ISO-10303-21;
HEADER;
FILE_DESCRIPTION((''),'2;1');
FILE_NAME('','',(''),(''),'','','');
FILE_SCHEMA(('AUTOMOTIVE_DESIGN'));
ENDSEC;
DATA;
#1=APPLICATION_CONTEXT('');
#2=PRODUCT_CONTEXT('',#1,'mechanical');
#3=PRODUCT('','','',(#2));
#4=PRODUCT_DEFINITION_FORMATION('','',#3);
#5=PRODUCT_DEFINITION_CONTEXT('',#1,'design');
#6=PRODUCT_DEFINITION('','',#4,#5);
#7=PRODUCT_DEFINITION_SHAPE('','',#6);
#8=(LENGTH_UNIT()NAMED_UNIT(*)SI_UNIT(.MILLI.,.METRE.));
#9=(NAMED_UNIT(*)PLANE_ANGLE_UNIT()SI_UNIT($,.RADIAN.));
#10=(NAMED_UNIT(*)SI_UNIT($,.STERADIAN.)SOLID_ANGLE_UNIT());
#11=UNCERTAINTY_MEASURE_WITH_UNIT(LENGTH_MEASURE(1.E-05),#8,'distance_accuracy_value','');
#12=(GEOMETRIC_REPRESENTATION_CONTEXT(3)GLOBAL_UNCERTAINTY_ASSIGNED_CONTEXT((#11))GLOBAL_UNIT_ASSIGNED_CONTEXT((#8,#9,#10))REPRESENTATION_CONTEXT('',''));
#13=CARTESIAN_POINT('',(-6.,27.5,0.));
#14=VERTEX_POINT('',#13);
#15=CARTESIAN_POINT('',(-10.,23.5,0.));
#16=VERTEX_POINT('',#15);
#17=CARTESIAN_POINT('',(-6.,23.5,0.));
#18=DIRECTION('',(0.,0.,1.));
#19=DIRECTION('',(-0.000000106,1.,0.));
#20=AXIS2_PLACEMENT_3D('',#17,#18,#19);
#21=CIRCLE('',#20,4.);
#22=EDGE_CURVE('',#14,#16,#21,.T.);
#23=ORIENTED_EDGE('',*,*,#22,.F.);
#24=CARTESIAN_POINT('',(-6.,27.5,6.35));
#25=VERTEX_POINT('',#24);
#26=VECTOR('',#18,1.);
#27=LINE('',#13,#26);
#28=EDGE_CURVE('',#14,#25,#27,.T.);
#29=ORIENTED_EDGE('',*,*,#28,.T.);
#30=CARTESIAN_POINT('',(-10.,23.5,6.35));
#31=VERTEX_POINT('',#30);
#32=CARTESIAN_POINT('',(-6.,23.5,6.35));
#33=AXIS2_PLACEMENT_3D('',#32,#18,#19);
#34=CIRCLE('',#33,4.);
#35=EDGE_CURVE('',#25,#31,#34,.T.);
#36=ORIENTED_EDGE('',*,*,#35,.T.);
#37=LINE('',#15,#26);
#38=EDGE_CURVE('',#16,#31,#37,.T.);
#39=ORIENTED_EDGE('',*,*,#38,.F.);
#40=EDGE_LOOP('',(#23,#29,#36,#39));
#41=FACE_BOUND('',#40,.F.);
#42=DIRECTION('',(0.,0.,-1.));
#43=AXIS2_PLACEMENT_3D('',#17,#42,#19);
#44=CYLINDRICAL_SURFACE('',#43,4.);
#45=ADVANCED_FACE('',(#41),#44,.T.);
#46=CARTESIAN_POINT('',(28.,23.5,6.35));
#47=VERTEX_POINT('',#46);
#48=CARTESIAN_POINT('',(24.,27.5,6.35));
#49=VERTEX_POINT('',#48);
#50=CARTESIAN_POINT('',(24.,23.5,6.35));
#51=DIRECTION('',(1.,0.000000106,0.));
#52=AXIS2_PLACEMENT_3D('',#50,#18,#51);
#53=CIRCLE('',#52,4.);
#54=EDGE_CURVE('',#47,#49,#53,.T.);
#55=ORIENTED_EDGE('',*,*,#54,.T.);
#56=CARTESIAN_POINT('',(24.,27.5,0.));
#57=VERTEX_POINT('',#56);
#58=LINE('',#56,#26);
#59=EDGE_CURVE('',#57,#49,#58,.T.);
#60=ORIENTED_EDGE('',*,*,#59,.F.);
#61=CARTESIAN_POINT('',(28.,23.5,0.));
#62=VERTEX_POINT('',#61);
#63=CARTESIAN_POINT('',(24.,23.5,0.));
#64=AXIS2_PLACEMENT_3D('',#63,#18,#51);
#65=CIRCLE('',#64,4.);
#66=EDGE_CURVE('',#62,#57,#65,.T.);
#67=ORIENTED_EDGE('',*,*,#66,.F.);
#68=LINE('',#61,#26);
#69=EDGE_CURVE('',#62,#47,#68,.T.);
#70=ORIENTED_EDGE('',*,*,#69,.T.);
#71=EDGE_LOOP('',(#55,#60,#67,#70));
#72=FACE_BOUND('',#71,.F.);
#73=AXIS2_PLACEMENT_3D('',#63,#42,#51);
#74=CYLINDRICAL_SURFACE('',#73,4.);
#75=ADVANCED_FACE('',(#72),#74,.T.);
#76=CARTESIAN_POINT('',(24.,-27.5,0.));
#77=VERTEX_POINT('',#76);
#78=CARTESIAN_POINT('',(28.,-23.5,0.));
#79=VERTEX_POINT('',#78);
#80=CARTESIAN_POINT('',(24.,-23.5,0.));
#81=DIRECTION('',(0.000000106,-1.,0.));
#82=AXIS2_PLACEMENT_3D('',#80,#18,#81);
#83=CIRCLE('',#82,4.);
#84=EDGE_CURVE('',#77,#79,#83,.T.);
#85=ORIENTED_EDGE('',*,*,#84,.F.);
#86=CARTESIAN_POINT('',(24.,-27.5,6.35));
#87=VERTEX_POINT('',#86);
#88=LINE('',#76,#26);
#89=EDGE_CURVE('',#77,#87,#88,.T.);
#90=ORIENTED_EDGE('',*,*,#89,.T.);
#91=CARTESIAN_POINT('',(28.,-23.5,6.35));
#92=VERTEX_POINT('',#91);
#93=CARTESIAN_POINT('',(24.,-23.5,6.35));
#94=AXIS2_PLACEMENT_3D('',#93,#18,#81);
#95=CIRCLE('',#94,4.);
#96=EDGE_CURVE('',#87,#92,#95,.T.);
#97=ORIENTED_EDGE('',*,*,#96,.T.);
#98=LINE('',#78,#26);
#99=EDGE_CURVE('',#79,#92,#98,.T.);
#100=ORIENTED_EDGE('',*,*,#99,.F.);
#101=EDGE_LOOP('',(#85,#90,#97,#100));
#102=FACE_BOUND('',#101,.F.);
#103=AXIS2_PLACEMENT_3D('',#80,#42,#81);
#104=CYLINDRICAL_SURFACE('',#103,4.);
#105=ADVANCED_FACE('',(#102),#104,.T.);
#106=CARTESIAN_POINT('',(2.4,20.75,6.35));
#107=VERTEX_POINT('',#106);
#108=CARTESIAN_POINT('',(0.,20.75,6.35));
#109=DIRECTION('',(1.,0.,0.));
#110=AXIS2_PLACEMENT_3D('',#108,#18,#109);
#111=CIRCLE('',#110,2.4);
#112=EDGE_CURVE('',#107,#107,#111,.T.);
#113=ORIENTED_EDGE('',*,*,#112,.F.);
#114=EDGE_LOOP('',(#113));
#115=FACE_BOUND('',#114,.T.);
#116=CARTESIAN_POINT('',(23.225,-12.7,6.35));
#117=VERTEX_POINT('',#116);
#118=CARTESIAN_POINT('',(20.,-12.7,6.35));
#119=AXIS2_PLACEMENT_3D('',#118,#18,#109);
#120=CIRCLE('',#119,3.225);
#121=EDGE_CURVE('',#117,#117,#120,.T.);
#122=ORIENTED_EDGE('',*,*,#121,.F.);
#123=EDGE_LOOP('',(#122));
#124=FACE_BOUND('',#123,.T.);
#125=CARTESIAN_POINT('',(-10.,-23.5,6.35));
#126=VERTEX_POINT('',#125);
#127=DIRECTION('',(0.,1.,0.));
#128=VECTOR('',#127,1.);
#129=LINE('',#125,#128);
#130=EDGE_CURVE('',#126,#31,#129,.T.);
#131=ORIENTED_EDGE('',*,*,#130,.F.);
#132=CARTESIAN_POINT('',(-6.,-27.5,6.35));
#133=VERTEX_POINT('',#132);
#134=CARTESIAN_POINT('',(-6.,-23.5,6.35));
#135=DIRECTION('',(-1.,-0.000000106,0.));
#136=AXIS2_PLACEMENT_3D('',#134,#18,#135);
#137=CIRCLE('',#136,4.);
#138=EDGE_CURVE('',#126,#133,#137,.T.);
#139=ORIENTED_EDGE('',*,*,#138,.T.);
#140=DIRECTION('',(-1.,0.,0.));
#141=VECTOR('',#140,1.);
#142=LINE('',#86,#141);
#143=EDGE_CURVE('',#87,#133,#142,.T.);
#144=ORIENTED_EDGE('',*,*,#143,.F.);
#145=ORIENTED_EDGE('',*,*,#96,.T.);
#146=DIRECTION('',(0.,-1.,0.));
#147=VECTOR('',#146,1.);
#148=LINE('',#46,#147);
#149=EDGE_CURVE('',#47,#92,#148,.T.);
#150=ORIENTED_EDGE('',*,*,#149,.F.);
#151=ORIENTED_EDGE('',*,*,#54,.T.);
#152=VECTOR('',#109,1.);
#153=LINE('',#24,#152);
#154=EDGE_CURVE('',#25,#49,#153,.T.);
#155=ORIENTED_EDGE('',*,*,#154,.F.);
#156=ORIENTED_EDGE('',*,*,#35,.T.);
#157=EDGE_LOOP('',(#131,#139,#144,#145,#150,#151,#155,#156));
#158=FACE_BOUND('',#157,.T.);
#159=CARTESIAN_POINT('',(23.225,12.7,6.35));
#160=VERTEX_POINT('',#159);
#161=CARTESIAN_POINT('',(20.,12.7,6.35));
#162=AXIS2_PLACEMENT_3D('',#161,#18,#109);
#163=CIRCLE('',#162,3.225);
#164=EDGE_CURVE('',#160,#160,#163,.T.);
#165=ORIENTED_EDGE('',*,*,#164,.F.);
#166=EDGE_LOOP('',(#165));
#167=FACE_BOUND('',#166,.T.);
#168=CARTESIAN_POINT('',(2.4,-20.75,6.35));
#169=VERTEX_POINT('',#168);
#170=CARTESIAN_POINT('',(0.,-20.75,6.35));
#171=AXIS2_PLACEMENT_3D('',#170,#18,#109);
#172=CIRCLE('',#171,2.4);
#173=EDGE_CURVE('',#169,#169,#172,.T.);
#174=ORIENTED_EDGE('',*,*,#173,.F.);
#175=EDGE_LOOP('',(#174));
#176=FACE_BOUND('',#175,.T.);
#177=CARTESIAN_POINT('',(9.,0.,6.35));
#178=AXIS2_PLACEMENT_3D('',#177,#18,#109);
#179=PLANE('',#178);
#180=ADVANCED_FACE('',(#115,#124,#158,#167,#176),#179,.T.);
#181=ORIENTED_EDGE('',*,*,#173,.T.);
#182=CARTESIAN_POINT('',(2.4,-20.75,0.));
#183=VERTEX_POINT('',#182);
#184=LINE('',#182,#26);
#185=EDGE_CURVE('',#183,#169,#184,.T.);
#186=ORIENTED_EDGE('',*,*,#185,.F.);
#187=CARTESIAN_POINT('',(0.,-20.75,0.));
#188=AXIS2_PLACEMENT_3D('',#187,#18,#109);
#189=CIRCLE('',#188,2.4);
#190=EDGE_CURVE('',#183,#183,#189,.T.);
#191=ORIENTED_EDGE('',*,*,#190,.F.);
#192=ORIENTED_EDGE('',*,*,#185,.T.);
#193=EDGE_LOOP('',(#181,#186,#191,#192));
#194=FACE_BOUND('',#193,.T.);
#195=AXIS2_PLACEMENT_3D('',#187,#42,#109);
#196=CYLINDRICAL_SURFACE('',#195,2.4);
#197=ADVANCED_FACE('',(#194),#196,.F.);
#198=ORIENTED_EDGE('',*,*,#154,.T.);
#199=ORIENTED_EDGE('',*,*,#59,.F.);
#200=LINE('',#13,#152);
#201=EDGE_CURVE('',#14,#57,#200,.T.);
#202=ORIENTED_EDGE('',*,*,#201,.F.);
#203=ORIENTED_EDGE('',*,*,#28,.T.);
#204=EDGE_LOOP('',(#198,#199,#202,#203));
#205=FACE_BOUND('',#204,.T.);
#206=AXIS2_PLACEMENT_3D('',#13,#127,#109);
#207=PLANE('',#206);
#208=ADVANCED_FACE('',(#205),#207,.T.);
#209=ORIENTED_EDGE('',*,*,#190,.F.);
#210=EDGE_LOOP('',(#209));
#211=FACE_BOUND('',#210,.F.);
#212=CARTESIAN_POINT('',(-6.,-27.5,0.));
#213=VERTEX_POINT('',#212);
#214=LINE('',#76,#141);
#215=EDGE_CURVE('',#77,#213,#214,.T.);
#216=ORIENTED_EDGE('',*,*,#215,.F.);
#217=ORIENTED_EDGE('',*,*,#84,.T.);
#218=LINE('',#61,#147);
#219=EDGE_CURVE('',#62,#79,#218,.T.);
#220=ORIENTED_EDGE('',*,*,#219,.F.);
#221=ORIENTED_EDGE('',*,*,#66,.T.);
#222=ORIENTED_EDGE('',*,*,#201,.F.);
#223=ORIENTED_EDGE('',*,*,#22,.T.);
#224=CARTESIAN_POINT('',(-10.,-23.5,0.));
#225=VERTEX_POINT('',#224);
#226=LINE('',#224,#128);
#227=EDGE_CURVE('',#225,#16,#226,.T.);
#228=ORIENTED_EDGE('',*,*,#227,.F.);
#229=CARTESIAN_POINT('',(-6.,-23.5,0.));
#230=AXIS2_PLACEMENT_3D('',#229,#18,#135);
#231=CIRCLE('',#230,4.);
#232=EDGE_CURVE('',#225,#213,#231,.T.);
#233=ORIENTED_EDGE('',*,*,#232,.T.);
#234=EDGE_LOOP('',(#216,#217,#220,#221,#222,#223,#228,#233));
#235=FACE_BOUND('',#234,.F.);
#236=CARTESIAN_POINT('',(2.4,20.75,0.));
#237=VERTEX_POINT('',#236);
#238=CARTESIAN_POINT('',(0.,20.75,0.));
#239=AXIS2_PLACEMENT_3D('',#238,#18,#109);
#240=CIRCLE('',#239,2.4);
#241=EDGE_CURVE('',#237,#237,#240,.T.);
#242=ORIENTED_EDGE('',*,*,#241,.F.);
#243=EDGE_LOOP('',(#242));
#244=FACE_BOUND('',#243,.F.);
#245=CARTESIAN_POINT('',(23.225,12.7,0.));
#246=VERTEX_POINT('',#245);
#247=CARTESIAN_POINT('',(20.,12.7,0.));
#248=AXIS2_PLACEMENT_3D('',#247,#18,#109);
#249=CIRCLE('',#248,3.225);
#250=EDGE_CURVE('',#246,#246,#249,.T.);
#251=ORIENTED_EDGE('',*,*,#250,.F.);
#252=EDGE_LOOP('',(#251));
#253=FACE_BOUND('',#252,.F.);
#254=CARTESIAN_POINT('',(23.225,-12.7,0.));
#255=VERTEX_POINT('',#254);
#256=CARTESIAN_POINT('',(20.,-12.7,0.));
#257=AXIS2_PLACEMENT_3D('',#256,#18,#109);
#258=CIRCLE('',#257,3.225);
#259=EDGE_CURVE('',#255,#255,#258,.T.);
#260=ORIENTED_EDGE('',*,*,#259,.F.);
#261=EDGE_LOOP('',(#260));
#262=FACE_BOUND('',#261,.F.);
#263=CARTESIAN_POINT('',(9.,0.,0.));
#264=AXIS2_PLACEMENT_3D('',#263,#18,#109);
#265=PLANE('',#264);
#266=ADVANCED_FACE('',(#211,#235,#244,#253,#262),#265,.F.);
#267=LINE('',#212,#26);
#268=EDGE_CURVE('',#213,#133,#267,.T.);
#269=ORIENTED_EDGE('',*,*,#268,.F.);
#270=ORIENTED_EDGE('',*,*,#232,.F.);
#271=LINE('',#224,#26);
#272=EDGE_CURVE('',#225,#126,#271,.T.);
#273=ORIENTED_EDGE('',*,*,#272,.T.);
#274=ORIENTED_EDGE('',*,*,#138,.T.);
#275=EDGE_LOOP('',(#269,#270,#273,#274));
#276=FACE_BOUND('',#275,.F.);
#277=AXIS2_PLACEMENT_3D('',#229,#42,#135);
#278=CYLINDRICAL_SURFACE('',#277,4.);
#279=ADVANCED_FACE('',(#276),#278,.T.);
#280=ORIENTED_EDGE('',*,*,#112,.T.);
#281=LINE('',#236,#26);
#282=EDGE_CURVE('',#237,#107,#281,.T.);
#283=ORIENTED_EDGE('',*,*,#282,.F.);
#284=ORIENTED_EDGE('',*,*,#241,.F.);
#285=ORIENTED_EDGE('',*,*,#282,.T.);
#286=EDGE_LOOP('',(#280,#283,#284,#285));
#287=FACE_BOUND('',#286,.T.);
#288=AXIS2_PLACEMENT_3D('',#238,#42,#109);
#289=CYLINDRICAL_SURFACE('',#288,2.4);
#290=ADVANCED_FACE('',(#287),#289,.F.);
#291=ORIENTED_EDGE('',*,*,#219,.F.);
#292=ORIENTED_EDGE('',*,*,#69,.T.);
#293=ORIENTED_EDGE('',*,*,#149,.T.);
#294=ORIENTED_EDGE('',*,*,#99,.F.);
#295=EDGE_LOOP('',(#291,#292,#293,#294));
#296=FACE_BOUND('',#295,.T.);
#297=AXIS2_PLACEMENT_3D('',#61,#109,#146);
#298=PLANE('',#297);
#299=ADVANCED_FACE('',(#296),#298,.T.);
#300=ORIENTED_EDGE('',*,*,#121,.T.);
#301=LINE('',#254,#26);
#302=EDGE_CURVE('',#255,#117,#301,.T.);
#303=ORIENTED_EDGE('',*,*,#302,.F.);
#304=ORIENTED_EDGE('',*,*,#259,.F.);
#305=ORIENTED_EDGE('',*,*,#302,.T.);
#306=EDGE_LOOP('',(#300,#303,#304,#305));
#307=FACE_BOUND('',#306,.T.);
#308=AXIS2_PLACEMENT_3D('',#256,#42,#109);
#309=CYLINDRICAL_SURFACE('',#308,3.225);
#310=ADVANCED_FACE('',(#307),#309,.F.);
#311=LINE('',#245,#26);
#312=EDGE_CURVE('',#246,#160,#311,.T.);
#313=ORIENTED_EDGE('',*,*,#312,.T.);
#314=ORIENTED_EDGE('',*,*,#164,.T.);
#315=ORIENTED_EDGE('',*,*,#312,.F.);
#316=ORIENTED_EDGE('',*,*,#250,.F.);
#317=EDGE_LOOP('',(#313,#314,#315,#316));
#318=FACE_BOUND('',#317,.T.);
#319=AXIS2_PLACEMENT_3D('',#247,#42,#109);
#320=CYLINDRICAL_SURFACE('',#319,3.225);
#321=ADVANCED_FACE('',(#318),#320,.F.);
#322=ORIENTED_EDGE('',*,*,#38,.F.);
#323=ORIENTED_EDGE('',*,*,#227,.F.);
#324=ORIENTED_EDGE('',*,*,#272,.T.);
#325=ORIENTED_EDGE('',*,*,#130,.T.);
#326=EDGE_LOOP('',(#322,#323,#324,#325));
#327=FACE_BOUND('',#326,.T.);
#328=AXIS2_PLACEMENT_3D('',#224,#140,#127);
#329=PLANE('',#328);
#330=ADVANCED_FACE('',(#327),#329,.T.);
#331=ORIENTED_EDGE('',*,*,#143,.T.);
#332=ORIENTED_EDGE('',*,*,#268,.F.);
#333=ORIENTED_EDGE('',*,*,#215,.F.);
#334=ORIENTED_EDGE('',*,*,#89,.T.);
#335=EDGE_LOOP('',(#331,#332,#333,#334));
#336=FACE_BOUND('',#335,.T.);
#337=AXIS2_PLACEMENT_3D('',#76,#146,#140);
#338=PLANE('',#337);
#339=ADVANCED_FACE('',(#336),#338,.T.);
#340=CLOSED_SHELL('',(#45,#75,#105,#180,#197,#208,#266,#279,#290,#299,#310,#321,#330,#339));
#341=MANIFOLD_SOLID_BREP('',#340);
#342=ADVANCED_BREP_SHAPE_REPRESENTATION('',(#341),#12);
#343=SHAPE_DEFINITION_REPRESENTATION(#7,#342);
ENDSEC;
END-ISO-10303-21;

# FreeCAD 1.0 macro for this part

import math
import FreeCAD as App
import Part
import Sketcher
from FreeCAD import Vector
Q = App.Units.Quantity

doc = App.newDocument("Part")
body = doc.addObject("PartDesign::Body", "Body")

# Sketch on XY plane
sketch1 = body.newObject("Sketcher::SketchObject", "Sketch")
sketch1.AttachmentSupport = (doc.getObject("XY_Plane"), [""])
sketch1.MapMode = "FlatFace"
sketch1.addGeometry(Part.ArcOfCircle(Part.Circle(Vector(-6, 23.5, 0), Vector(0, 0, 1), 4), math.radians(90), math.radians(180)), False)
sketch1.addGeometry(Part.LineSegment(Vector(-10, 23.5, 0), Vector(-10, -23.5, 0)), False)
sketch1.addGeometry(Part.ArcOfCircle(Part.Circle(Vector(-6, -23.5, 0), Vector(0, 0, 1), 4), math.radians(-180), math.radians(-90)), False)
sketch1.addGeometry(Part.LineSegment(Vector(-6, -27.5, 0), Vector(24, -27.5, 0)), False)
sketch1.addGeometry(Part.ArcOfCircle(Part.Circle(Vector(24, -23.5, 0), Vector(0, 0, 1), 4), math.radians(-90), math.radians(0)), False)
sketch1.addGeometry(Part.LineSegment(Vector(28, -23.5, 0), Vector(28, 23.5, 0)), False)
sketch1.addGeometry(Part.ArcOfCircle(Part.Circle(Vector(24, 23.5, 0), Vector(0, 0, 1), 4), math.radians(0), math.radians(90)), False)
sketch1.addGeometry(Part.LineSegment(Vector(24, 27.5, 0), Vector(-6, 27.5, 0)), False)
sketch1.addGeometry(Part.Circle(Vector(0, -20.8, 0), Vector(0, 0, 1), 2.4), False)
sketch1.addGeometry(Part.Circle(Vector(20, -12.7, 0), Vector(0, 0, 1), 3.2), False)
sketch1.addGeometry(Part.Circle(Vector(0, 20.8, 0), Vector(0, 0, 1), 2.4), False)
sketch1.addGeometry(Part.Circle(Vector(20, 12.7, 0), Vector(0, 0, 1), 3.2), False)
sketch1.addConstraint(Sketcher.Constraint("Tangent", 0, 2, 1, 1))
sketch1.addConstraint(Sketcher.Constraint("Tangent", 1, 2, 2, 1))
sketch1.addConstraint(Sketcher.Constraint("Tangent", 2, 2, 3, 1))
sketch1.addConstraint(Sketcher.Constraint("Tangent", 3, 2, 4, 1))
sketch1.addConstraint(Sketcher.Constraint("Tangent", 4, 2, 5, 1))
sketch1.addConstraint(Sketcher.Constraint("Tangent", 5, 2, 6, 1))
sketch1.addConstraint(Sketcher.Constraint("Tangent", 6, 2, 7, 1))
sketch1.addConstraint(Sketcher.Constraint("Tangent", 7, 2, 0, 1))
sketch1.addConstraint(Sketcher.Constraint("Vertical", 1))
sketch1.addConstraint(Sketcher.Constraint("Horizontal", 3))
sketch1.addConstraint(Sketcher.Constraint("Vertical", 5))
sketch1.addConstraint(Sketcher.Constraint("Horizontal", 7))
sketch1.addConstraint(Sketcher.Constraint("Equal", 0, 2))
sketch1.addConstraint(Sketcher.Constraint("Equal", 2, 4))
sketch1.addConstraint(Sketcher.Constraint("Equal", 4, 6))
sketch1.addConstraint(Sketcher.Constraint("Equal", 8, 10))
sketch1.addConstraint(Sketcher.Constraint("Equal", 9, 11))
sketch1.addConstraint(Sketcher.Constraint("Symmetric", 8, 3, 10, 3, -1, 1))
sketch1.addConstraint(Sketcher.Constraint("Symmetric", 9, 3, 11, 3, -1))
sketch1.addConstraint(Sketcher.Constraint("PointOnObject", 8, 3, -2))
sketch1.addConstraint(Sketcher.Constraint("Radius", 0, Q("4 mm")))
sketch1.addConstraint(Sketcher.Constraint("Diameter", 8, Q("4.8 mm")))
sketch1.addConstraint(Sketcher.Constraint("Diameter", 9, Q("6.45 mm")))
sketch1.addConstraint(Sketcher.Constraint("DistanceX", 3, 1, 3, 2, Q("30 mm")))
sketch1.addConstraint(Sketcher.Constraint("DistanceY", 1, 2, 1, 1, Q("47 mm")))
sketch1.addConstraint(Sketcher.Constraint("DistanceX", 0, 3, -1, 1, Q("6 mm")))
sketch1.addConstraint(Sketcher.Constraint("DistanceX", -1, 1, 9, 3, Q("20 mm")))
sketch1.addConstraint(Sketcher.Constraint("DistanceY", -1, 1, 0, 3, Q("23.5 mm")))
sketch1.addConstraint(Sketcher.Constraint("DistanceY", 9, 3, -1, 1, Q("12.7 mm")))
sketch1.addConstraint(Sketcher.Constraint("DistanceY", 8, 3, 10, 3, Q("41.5 mm")))
pad1 = body.newObject("PartDesign::Pad", "Pad")
pad1.Profile = sketch1
pad1.Length = 6.35

doc.recompute()
